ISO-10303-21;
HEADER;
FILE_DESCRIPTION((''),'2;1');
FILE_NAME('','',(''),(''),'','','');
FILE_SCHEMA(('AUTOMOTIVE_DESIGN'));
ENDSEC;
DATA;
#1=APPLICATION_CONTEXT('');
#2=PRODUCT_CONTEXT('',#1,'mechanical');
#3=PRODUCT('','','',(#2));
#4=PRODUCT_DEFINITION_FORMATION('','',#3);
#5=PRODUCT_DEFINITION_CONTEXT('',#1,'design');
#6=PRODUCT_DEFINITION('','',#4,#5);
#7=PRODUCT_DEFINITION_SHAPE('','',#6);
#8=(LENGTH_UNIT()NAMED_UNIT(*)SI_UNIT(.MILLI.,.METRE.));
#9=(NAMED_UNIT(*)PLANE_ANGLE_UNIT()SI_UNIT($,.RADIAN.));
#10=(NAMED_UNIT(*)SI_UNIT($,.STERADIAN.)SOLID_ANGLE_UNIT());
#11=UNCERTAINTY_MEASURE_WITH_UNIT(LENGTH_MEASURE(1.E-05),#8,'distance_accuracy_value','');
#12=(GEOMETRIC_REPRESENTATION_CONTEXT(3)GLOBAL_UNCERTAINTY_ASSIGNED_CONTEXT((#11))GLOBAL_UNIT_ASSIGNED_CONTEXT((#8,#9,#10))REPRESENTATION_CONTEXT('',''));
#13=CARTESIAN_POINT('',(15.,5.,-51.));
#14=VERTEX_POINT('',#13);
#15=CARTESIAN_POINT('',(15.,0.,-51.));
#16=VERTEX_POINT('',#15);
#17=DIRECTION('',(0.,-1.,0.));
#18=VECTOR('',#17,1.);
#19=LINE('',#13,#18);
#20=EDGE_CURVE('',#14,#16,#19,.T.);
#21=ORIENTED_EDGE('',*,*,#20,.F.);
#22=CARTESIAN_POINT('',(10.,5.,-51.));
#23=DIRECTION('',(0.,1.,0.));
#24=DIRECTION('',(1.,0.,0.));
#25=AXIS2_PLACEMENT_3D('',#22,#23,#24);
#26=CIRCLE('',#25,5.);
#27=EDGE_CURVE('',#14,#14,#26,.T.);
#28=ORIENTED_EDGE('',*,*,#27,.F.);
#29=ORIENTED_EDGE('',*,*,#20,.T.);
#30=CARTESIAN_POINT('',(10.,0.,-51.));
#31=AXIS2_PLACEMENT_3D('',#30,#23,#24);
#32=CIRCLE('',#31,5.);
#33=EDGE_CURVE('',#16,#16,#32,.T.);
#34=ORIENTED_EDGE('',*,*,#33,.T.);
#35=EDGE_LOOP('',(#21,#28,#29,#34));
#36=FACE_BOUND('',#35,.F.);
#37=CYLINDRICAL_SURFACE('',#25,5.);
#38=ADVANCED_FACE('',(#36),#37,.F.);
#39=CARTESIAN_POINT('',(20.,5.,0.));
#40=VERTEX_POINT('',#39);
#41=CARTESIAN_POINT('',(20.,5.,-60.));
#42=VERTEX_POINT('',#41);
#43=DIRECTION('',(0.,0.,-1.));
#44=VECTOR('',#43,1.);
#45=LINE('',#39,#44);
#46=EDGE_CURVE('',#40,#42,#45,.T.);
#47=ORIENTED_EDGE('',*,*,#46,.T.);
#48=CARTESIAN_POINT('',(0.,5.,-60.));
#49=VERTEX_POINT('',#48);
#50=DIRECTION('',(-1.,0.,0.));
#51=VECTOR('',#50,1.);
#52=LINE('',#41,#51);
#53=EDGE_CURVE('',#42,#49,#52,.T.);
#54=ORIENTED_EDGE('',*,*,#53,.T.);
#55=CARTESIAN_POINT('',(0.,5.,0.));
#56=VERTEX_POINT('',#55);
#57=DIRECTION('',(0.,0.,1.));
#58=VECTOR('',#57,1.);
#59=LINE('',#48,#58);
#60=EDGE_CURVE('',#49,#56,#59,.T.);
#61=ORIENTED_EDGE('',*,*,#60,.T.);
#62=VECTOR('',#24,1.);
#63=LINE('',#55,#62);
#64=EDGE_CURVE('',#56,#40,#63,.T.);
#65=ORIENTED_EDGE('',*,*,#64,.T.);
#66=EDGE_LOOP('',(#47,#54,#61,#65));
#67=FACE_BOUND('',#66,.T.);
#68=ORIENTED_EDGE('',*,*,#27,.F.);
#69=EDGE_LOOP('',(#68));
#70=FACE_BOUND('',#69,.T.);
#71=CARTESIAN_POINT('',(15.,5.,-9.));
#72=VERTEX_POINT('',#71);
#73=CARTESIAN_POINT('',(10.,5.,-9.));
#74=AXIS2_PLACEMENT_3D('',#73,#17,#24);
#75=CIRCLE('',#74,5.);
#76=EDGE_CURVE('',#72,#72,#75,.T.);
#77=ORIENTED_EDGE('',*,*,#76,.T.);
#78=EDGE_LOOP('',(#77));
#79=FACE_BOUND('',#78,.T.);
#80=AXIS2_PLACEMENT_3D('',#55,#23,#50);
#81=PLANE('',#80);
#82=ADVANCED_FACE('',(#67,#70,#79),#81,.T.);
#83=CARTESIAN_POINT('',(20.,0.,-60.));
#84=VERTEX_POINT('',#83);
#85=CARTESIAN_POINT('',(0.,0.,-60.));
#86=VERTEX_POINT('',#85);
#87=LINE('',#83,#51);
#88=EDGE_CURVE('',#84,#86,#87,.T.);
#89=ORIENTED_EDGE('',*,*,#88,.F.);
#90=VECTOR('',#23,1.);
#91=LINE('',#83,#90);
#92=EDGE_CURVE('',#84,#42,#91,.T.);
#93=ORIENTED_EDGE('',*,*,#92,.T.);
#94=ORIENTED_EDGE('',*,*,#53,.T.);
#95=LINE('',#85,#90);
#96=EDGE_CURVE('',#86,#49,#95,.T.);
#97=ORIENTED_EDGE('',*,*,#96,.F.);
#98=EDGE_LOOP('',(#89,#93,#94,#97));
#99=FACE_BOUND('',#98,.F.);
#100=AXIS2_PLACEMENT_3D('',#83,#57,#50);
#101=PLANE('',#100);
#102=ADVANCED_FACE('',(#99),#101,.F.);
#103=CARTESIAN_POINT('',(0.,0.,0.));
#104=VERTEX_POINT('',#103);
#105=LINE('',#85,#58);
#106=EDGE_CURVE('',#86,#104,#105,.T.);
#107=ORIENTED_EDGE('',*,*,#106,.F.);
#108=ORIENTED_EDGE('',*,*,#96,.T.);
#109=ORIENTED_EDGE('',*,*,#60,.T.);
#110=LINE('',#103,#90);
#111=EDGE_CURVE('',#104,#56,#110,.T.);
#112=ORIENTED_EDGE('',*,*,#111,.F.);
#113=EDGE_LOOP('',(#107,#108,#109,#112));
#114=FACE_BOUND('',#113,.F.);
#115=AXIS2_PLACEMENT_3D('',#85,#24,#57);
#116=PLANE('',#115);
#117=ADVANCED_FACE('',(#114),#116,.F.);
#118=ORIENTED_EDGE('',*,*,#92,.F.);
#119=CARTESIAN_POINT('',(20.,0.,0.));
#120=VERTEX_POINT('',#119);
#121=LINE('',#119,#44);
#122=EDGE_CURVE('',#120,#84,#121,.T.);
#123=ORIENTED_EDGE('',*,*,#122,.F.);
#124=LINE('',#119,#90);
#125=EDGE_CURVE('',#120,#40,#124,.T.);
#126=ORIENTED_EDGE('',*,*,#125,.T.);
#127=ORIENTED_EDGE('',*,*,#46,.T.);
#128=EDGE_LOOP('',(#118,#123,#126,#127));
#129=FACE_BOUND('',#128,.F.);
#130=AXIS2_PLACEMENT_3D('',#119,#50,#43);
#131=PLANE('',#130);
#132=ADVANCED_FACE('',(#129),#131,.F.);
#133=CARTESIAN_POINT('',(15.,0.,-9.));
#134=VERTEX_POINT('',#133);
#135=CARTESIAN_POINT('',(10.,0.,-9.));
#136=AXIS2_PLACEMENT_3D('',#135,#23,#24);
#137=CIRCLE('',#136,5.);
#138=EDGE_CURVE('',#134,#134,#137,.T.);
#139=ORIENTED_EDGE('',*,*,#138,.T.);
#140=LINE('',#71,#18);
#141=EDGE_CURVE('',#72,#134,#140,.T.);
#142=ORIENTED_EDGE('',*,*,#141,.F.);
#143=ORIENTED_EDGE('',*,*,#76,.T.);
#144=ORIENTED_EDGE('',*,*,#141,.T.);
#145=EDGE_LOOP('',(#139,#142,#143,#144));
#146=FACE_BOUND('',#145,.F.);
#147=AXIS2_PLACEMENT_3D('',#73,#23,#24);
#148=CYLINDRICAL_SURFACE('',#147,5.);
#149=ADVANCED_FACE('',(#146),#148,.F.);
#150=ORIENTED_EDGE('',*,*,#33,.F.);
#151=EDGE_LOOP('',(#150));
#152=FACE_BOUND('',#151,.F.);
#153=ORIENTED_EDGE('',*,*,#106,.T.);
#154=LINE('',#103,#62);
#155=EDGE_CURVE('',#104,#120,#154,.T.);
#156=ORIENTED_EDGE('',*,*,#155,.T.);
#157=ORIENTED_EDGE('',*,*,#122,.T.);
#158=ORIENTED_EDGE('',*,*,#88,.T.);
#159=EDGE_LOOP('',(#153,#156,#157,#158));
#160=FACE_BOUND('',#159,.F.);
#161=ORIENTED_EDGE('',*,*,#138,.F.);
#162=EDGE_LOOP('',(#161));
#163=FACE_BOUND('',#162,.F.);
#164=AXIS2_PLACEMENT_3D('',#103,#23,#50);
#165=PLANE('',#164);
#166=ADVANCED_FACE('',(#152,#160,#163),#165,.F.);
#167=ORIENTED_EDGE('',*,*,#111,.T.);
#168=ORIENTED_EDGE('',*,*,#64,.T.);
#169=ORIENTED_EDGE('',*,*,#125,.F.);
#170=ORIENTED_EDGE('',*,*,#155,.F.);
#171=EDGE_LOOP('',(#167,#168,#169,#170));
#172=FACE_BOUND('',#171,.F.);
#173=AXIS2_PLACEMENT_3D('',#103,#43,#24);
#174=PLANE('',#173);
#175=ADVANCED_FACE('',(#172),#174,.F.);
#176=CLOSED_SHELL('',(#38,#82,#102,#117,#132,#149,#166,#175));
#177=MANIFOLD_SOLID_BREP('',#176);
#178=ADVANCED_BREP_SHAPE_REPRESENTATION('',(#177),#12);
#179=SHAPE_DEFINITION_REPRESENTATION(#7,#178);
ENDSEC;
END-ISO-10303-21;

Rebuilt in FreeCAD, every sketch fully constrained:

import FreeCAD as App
import Part
import Sketcher
from FreeCAD import Vector

doc = App.newDocument("Part")
params = doc.addObject("Spreadsheet::Sheet", "Params")
for row, (alias, value) in enumerate([
    ("sketch1_width", "20 mm"),
    ("sketch1_height", "60 mm"),
    ("pad1_length", "5 mm"),
    ("sketch2_diameter", "10 mm"),
    ("pocket1_length", "23 mm"),
], start=1):
    params.set(f"A{row}", alias)
    params.set(f"B{row}", "=" + value)
    params.setAlias(f"B{row}", alias)

body = doc.addObject("PartDesign::Body", "Body")

# Sketch on XZ plane
sketch1 = body.newObject("Sketcher::SketchObject", "Sketch")
sketch1.AttachmentSupport = (doc.getObject("XZ_Plane"), [""])
sketch1.MapMode = "FlatFace"
sketch1.addGeometry(Part.LineSegment(Vector(0, -60, 0), Vector(0, 0, 0)), False)
sketch1.addGeometry(Part.LineSegment(Vector(0, 0, 0), Vector(20, 0, 0)), False)
sketch1.addGeometry(Part.LineSegment(Vector(20, 0, 0), Vector(20, -60, 0)), False)
sketch1.addGeometry(Part.LineSegment(Vector(20, -60, 0), Vector(0, -60, 0)), False)
sketch1.addConstraint(Sketcher.Constraint("Coincident", 0, 2, 1, 1))
sketch1.addConstraint(Sketcher.Constraint("Coincident", 1, 2, 2, 1))
sketch1.addConstraint(Sketcher.Constraint("Coincident", 2, 2, 3, 1))
sketch1.addConstraint(Sketcher.Constraint("Coincident", 3, 2, 0, 1))
sketch1.addConstraint(Sketcher.Constraint("Vertical", 0))
sketch1.addConstraint(Sketcher.Constraint("Horizontal", 1))
sketch1.addConstraint(Sketcher.Constraint("Vertical", 2))
sketch1.addConstraint(Sketcher.Constraint("Horizontal", 3))
sketch1.addConstraint(Sketcher.Constraint("Coincident", 0, 2, -1, 1))
sketch1.addConstraint(Sketcher.Constraint("DistanceX", 1, 1, 1, 2, 20.0))
sketch1.addConstraint(Sketcher.Constraint("DistanceY", 0, 1, 0, 2, 60.0))
sketch1.setExpression("Constraints[9]", "Params.sketch1_width")
sketch1.setExpression("Constraints[10]", "Params.sketch1_height")
pad1 = body.newObject("PartDesign::Pad", "Pad")
pad1.Profile = sketch1
pad1.setExpression("Length", "Params.pad1_length")
pad1.Reversed = True

# Sketch on XZ plane
sketch2 = body.newObject("Sketcher::SketchObject", "Sketch001")
sketch2.AttachmentSupport = (doc.getObject("XZ_Plane"), [""])
sketch2.MapMode = "FlatFace"
sketch2.AttachmentOffset = App.Placement(Vector(0, 0, -5), App.Rotation())
sketch2.addGeometry(Part.Circle(Vector(10, -9, 0), Vector(0, 0, 1), 5), False)
sketch2.addGeometry(Part.Circle(Vector(10, -51, 0), Vector(0, 0, 1), 5), False)
sketch2.addConstraint(Sketcher.Constraint("Equal", 0, 1))
sketch2.addConstraint(Sketcher.Constraint("Vertical", 0, 3, 1, 3))
sketch2.addConstraint(Sketcher.Constraint("Diameter", 0, 10.0))
sketch2.addConstraint(Sketcher.Constraint("DistanceX", -1, 1, 0, 3, 10.0))
sketch2.addConstraint(Sketcher.Constraint("DistanceY", 0, 3, -1, 1, 9.0))
sketch2.addConstraint(Sketcher.Constraint("DistanceY", 1, 3, -1, 1, 51.0))
sketch2.setExpression("Constraints[2]", "Params.sketch2_diameter")
pocket1 = body.newObject("PartDesign::Pocket", "Pocket")
pocket1.Profile = sketch2
pocket1.setExpression("Length", "Params.pocket1_length")
pocket1.Reversed = True

doc.recompute()
